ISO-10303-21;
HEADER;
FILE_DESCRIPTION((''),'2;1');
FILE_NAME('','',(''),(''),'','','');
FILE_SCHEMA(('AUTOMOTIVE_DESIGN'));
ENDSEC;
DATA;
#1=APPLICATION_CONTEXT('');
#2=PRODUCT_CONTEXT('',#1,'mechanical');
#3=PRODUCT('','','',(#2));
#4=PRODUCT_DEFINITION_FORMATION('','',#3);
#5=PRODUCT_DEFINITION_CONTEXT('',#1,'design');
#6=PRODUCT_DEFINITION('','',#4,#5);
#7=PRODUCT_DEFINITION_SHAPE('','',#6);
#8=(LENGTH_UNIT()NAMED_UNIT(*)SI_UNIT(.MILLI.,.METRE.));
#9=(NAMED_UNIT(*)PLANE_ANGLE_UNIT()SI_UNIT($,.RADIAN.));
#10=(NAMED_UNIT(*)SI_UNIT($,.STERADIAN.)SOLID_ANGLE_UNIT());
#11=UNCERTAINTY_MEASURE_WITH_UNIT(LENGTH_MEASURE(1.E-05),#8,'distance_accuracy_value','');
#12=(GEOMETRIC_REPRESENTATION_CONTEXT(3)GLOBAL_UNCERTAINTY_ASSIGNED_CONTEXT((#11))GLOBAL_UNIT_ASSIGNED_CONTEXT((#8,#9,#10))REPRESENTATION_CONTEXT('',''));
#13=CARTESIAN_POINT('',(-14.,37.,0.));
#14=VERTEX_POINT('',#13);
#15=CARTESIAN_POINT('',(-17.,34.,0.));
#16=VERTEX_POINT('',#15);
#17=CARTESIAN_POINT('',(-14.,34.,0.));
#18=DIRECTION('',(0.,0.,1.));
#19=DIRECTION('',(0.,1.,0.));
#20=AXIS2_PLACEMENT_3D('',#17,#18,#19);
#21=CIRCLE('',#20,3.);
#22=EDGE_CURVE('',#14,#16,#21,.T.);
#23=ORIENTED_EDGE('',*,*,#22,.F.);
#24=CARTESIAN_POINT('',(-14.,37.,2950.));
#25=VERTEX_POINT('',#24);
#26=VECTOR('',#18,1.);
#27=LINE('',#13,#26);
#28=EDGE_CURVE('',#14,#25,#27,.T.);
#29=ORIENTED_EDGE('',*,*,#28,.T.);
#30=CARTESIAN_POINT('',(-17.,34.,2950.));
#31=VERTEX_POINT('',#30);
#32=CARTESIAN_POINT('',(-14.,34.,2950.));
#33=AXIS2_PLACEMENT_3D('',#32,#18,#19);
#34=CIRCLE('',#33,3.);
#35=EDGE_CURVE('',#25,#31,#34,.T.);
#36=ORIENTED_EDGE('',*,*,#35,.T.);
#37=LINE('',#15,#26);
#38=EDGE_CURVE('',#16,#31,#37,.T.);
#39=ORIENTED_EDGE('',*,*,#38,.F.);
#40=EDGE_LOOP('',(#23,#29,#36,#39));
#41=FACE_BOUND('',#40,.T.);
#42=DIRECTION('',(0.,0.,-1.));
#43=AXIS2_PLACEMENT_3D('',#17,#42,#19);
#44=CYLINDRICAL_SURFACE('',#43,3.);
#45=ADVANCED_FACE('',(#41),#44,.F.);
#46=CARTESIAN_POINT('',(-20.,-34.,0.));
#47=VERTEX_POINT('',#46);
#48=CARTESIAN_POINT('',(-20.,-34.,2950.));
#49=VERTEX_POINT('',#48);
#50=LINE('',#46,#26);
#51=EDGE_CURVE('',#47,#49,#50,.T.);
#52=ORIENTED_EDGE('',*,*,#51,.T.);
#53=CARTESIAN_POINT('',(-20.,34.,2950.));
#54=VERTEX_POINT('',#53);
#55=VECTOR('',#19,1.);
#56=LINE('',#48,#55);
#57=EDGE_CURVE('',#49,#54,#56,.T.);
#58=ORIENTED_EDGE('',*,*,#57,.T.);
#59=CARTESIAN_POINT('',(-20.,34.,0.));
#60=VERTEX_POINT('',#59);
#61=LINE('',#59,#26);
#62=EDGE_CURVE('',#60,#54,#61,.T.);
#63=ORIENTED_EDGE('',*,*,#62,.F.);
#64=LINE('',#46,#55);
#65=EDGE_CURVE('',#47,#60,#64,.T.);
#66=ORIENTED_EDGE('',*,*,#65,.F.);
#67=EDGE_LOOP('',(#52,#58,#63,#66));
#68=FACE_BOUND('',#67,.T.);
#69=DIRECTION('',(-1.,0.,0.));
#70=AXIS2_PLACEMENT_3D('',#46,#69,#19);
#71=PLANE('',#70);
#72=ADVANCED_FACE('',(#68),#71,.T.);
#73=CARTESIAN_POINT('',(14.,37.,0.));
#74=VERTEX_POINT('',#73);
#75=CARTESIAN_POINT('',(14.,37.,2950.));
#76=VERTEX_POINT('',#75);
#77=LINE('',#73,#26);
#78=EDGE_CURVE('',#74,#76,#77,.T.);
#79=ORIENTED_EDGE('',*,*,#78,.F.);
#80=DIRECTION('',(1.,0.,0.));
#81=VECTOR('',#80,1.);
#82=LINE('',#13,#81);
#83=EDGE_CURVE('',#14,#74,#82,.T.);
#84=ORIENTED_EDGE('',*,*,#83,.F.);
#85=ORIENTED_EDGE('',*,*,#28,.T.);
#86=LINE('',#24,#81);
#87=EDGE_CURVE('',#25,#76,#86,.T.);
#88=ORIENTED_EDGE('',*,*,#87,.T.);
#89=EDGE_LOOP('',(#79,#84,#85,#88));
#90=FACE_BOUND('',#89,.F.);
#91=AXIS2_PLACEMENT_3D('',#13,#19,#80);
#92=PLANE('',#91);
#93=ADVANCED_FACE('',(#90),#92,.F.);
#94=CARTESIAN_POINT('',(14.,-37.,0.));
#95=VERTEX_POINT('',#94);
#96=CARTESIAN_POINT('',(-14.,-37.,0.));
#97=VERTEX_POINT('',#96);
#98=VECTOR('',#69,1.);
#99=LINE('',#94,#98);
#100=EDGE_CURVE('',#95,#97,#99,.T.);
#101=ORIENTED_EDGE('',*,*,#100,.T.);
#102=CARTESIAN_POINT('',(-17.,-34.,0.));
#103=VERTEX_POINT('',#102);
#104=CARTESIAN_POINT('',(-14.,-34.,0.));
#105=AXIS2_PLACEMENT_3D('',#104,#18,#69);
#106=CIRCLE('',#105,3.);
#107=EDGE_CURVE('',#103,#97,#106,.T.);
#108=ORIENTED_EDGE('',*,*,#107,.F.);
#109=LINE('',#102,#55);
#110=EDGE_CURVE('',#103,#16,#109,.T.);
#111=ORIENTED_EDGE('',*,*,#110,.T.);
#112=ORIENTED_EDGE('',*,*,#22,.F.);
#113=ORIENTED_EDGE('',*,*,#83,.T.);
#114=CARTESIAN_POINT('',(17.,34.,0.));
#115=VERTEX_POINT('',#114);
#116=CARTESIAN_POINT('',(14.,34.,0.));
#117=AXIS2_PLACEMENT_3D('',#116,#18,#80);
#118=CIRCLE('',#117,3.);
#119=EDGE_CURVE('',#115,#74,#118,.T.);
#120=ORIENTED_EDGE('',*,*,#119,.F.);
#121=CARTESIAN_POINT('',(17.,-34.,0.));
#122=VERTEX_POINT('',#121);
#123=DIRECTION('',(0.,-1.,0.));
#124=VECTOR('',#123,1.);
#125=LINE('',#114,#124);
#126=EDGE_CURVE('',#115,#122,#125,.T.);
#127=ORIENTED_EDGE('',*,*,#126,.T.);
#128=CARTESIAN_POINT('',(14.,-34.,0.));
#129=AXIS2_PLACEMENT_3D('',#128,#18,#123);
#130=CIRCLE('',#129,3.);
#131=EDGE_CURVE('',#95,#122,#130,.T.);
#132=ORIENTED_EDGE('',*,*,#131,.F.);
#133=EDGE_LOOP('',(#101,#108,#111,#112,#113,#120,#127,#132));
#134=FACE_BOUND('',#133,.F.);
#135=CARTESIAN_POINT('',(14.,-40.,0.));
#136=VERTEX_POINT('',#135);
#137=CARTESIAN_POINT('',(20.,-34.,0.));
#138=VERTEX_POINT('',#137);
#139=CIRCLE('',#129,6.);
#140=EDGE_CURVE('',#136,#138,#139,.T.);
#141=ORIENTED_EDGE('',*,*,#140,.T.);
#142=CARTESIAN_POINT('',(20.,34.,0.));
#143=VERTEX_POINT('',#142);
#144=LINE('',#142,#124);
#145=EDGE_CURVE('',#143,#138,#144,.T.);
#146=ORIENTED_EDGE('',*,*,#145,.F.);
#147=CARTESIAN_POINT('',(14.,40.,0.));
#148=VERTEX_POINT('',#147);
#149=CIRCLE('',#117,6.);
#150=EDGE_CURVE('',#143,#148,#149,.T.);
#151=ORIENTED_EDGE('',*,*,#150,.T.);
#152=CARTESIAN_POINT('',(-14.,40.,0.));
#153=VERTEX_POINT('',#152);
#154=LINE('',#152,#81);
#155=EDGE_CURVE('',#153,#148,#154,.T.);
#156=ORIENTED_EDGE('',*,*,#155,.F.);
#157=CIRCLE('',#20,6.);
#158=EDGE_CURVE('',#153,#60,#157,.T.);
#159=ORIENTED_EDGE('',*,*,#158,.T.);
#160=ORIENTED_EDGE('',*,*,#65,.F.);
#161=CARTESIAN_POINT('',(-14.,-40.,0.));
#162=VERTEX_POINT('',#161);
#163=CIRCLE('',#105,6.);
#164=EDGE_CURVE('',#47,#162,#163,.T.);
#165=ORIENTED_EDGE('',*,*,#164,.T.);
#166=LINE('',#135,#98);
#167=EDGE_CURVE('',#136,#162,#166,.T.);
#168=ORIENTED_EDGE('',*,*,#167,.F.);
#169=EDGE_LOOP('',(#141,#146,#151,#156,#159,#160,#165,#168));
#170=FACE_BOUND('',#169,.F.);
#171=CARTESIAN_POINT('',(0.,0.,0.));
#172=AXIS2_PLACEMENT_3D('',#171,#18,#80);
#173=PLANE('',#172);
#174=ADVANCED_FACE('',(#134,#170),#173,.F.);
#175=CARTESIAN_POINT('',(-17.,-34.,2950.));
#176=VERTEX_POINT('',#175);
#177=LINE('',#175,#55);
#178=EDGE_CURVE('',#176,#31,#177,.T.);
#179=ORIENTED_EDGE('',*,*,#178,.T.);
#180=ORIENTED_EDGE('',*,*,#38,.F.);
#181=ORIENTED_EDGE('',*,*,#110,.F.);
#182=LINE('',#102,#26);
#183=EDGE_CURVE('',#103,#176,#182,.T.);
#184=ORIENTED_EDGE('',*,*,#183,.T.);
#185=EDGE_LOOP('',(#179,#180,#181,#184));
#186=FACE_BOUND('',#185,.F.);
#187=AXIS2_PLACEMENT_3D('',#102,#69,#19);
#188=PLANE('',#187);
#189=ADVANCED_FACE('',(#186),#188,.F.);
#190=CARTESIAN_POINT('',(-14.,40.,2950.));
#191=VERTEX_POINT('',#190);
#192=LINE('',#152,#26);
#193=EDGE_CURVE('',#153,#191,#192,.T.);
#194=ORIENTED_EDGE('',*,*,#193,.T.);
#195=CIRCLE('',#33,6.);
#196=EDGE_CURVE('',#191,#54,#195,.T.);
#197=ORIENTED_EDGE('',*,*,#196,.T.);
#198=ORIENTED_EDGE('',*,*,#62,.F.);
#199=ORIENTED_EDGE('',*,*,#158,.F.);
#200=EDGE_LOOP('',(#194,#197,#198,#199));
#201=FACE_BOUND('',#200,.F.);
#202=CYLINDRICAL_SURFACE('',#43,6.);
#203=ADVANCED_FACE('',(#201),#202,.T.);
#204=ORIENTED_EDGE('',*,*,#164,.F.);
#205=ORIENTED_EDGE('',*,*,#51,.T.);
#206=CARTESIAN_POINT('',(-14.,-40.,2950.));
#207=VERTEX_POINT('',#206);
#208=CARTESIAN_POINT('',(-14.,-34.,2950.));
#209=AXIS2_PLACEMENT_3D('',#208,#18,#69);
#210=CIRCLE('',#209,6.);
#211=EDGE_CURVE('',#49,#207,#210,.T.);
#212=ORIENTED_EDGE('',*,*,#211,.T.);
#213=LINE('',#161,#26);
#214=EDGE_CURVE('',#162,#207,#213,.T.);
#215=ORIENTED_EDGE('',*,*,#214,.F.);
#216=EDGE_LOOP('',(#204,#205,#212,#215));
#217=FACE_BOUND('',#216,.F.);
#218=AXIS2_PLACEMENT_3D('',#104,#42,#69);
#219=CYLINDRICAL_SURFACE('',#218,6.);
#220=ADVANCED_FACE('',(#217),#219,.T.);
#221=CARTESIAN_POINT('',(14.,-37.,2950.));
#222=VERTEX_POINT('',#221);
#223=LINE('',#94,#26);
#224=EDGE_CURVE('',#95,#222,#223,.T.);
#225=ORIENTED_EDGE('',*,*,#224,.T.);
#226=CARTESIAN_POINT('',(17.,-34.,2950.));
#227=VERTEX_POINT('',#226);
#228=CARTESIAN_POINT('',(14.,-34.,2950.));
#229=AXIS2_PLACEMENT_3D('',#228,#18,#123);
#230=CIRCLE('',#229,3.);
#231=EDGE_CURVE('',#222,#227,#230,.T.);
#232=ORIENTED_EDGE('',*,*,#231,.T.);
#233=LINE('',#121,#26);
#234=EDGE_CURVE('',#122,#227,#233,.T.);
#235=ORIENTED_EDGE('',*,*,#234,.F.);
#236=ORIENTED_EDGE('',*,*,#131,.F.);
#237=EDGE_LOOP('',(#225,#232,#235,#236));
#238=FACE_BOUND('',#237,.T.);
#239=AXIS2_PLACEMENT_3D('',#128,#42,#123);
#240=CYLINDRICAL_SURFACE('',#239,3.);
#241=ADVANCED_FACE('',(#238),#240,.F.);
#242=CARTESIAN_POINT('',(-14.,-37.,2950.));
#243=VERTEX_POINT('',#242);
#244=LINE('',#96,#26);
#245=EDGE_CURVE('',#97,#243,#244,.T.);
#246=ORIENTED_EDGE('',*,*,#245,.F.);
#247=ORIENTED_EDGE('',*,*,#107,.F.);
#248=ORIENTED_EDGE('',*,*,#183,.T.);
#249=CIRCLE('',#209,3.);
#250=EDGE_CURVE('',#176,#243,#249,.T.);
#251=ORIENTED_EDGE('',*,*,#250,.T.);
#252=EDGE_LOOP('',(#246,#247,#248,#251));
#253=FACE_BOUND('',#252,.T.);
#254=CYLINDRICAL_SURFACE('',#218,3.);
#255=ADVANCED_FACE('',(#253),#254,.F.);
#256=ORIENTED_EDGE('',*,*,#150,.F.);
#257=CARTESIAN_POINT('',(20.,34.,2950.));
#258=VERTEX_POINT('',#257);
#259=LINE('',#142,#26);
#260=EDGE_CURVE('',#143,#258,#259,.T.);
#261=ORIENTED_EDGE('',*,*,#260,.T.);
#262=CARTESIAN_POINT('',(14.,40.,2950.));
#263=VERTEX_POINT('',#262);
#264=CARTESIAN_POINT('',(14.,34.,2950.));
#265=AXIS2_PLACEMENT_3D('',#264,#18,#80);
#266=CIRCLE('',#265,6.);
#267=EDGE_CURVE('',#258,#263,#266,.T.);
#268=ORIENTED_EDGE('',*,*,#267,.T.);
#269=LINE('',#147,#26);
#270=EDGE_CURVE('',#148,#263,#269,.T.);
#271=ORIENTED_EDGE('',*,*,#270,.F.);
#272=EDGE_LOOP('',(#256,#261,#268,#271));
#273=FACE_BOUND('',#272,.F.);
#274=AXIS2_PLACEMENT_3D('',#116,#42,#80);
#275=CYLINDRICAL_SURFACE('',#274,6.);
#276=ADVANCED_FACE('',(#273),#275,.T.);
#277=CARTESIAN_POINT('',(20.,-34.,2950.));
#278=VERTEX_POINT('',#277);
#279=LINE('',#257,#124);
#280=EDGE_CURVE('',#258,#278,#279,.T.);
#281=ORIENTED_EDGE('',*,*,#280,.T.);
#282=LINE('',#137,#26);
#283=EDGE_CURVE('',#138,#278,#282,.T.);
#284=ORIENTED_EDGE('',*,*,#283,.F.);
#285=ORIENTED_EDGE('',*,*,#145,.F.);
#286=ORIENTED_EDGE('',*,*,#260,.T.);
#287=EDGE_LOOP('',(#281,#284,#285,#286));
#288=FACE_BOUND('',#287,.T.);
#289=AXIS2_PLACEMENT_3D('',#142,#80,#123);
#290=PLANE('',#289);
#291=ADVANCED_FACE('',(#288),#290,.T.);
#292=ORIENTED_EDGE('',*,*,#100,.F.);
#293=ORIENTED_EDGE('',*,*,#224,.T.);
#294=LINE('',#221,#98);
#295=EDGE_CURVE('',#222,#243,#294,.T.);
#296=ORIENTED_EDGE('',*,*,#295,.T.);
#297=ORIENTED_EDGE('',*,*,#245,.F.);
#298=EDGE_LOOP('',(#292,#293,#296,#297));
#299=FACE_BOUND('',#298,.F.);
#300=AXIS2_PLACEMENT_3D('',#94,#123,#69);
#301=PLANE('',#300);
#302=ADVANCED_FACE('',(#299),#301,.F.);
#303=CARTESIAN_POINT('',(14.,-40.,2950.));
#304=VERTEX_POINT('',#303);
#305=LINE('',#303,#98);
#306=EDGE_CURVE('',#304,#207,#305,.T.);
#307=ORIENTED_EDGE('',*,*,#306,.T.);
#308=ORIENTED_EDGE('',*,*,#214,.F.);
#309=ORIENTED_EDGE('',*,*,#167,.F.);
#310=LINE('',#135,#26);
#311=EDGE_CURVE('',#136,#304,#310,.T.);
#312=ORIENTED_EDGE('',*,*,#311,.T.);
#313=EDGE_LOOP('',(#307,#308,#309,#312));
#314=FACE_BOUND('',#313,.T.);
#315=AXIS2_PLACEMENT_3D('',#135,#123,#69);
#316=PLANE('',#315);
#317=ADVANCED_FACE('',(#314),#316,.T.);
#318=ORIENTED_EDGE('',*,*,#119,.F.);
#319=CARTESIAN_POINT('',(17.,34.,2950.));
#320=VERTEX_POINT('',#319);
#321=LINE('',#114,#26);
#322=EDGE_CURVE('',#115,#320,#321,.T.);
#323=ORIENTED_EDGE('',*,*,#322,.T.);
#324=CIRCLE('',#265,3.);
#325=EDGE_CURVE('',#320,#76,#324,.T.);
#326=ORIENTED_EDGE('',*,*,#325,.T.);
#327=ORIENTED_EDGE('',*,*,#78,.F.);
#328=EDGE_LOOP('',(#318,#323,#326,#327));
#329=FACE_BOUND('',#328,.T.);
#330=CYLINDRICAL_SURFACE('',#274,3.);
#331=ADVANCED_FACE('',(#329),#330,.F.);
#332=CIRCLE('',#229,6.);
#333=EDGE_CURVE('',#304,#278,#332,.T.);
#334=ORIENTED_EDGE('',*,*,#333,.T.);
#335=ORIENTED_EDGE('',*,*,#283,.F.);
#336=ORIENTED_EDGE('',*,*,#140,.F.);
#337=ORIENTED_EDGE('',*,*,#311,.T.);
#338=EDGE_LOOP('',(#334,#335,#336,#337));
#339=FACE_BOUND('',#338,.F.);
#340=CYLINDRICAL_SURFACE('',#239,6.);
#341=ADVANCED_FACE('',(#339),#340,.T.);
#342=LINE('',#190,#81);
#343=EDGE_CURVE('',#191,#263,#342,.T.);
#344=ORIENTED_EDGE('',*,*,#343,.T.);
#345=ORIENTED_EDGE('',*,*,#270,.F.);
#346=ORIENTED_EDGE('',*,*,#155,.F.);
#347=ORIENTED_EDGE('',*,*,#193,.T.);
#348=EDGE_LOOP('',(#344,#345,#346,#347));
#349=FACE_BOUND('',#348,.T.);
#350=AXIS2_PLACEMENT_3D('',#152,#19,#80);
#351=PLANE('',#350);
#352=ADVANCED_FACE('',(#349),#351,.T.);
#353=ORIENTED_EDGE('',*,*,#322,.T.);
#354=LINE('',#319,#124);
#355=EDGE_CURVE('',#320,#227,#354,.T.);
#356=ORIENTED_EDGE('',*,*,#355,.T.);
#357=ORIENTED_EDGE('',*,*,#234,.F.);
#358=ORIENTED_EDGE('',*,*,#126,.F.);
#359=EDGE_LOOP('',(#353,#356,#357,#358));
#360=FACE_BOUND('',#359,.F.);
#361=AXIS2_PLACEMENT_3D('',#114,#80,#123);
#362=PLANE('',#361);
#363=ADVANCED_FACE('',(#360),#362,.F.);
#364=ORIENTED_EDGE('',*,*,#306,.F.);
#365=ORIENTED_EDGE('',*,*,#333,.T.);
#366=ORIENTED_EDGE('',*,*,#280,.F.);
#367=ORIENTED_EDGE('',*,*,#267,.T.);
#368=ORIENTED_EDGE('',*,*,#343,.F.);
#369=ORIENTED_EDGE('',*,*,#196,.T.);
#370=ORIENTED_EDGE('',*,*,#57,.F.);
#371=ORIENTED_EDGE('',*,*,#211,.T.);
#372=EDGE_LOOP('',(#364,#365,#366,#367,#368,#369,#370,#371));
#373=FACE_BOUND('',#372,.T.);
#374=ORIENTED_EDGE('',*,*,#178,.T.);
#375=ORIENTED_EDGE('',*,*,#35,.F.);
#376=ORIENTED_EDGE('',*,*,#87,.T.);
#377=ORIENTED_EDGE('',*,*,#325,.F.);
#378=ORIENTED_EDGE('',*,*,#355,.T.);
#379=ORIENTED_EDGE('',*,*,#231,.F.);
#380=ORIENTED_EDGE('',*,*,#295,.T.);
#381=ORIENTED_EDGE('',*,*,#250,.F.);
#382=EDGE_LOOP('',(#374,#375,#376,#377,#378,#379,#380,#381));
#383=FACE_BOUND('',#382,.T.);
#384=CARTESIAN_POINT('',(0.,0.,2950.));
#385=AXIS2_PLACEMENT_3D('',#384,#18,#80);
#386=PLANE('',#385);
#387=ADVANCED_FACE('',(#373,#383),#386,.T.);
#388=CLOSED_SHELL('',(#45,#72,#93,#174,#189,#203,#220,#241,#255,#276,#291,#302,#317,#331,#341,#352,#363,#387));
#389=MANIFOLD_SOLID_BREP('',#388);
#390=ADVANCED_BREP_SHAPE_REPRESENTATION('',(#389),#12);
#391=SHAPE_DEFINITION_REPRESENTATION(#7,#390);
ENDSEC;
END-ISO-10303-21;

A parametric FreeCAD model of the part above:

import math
import FreeCAD as App
import Part
import Sketcher

V = App.Vector

doc = App.newDocument("Part")
params = doc.addObject("Spreadsheet::Sheet", "Params")
for row, (alias, value) in enumerate([
    ("sketch1_radius", "6 mm"),
    ("sketch1_radius2", "3 mm"),
    ("pad1_length", "2950 mm"),
], start=1):
    params.set(f"A{row}", alias)
    params.set(f"B{row}", "=" + value)
    params.setAlias(f"B{row}", alias)

body = doc.addObject("PartDesign::Body", "Body")

# Sketch on XY plane
sketch1 = body.newObject("Sketcher::SketchObject", "Sketch")
sketch1.AttachmentSupport = (doc.getObject("XY_Plane"), [""])
sketch1.MapMode = "FlatFace"
sketch1.addGeometry([
    Part.LineSegment(V(-20, 34, 0), V(-20, -34, 0)),  # 0
    Part.ArcOfCircle(Part.Circle(V(-14, -34, 0), V(0, 0, 1), 6), math.radians(180), math.radians(270)),  # 1
    Part.LineSegment(V(-14, -40, 0), V(14, -40, 0)),  # 2
    Part.ArcOfCircle(Part.Circle(V(14, -34, 0), V(0, 0, 1), 6), math.radians(-90), math.radians(0)),  # 3
    Part.LineSegment(V(20, -34, 0), V(20, 34, 0)),  # 4
    Part.ArcOfCircle(Part.Circle(V(14, 34, 0), V(0, 0, 1), 6), math.radians(0), math.radians(90)),  # 5
    Part.LineSegment(V(14, 40, 0), V(-14, 40, 0)),  # 6
    Part.ArcOfCircle(Part.Circle(V(-14, 34, 0), V(0, 0, 1), 6), math.radians(90), math.radians(180)),  # 7
    Part.ArcOfCircle(Part.Circle(V(-14, 34, 0), V(0, 0, 1), 3), math.radians(90), math.radians(180)),  # 8
    Part.LineSegment(V(-14, 37, 0), V(14, 37, 0)),  # 9
    Part.ArcOfCircle(Part.Circle(V(14, 34, 0), V(0, 0, 1), 3), math.radians(0), math.radians(90)),  # 10
    Part.LineSegment(V(17, 34, 0), V(17, -34, 0)),  # 11
    Part.ArcOfCircle(Part.Circle(V(14, -34, 0), V(0, 0, 1), 3), math.radians(-90), math.radians(0)),  # 12
    Part.LineSegment(V(14, -37, 0), V(-14, -37, 0)),  # 13
    Part.ArcOfCircle(Part.Circle(V(-14, -34, 0), V(0, 0, 1), 3), math.radians(180), math.radians(270)),  # 14
    Part.LineSegment(V(-17, -34, 0), V(-17, 34, 0)),  # 15
], False)
sketch1.addConstraint([
    Sketcher.Constraint("Tangent", 0, 2, 1, 1),
    Sketcher.Constraint("Tangent", 1, 2, 2, 1),
    Sketcher.Constraint("Tangent", 2, 2, 3, 1),
    Sketcher.Constraint("Tangent", 3, 2, 4, 1),
    Sketcher.Constraint("Tangent", 4, 2, 5, 1),
    Sketcher.Constraint("Tangent", 5, 2, 6, 1),
    Sketcher.Constraint("Tangent", 6, 2, 7, 1),
    Sketcher.Constraint("Tangent", 7, 2, 0, 1),
    Sketcher.Constraint("Tangent", 8, 1, 9, 1),
    Sketcher.Constraint("Tangent", 9, 2, 10, 2),
    Sketcher.Constraint("Tangent", 10, 1, 11, 1),
    Sketcher.Constraint("Tangent", 11, 2, 12, 2),
    Sketcher.Constraint("Tangent", 12, 1, 13, 1),
    Sketcher.Constraint("Tangent", 13, 2, 14, 2),
    Sketcher.Constraint("Tangent", 14, 1, 15, 1),
    Sketcher.Constraint("Tangent", 15, 2, 8, 2),
    Sketcher.Constraint("Vertical", 0),
    Sketcher.Constraint("Horizontal", 2),
    Sketcher.Constraint("Vertical", 4),
    Sketcher.Constraint("Horizontal", 6),
    Sketcher.Constraint("Horizontal", 9),
    Sketcher.Constraint("Vertical", 11),
    Sketcher.Constraint("Horizontal", 13),
    Sketcher.Constraint("Vertical", 15),
    Sketcher.Constraint("Coincident", 8, 3, 7, 3),
    Sketcher.Constraint("Coincident", 10, 3, 5, 3),
    Sketcher.Constraint("Coincident", 12, 3, 3, 3),
    Sketcher.Constraint("Equal", 1, 3),
    Sketcher.Constraint("Equal", 3, 5),
    Sketcher.Constraint("Equal", 5, 7),
    Sketcher.Constraint("Equal", 12, 14),
    Sketcher.Constraint("Symmetric", 1, 3, 5, 3, -1, 1),
    Sketcher.Constraint("Radius", 1, 6.0),
    Sketcher.Constraint("Radius", 8, 3.0),
    Sketcher.Constraint("DistanceX", 0, 2, -1, 1, 20.0),
    Sketcher.Constraint("DistanceY", 1, 2, -1, 1, 40.0),
])
sketch1.setExpression("Constraints[32]", "Params.sketch1_radius")
sketch1.setExpression("Constraints[33]", "Params.sketch1_radius2")
pad1 = body.newObject("PartDesign::Pad", "Pad")
pad1.Profile = sketch1
pad1.setExpression("Length", "Params.pad1_length")

doc.recompute()
